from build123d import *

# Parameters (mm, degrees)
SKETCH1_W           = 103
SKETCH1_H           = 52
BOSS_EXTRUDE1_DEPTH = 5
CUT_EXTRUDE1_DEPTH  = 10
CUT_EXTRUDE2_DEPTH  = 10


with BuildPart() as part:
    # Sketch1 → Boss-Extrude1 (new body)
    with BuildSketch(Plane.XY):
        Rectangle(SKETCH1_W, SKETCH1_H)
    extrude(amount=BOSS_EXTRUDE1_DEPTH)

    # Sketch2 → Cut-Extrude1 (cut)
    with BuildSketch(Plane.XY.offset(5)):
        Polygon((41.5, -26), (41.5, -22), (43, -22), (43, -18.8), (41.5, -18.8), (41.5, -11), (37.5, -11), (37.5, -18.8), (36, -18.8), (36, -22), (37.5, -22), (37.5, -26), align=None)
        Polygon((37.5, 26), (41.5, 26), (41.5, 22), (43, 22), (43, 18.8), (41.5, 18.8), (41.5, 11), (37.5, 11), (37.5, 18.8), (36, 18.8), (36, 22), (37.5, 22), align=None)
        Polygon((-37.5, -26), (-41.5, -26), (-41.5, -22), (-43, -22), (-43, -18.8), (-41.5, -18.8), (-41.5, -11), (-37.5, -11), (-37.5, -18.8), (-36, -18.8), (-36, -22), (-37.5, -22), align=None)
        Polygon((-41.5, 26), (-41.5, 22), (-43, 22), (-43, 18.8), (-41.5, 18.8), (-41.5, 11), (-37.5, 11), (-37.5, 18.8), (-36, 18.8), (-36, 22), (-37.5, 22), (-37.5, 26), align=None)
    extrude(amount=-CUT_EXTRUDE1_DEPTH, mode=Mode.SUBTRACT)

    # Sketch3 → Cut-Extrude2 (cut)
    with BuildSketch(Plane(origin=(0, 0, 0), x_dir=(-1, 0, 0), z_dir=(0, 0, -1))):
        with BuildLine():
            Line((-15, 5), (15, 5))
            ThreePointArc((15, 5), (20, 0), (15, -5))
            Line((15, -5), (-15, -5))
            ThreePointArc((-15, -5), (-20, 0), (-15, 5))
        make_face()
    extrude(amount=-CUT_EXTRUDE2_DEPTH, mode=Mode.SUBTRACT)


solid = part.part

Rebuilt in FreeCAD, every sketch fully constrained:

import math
import FreeCAD as App
import Part
import Sketcher
from FreeCAD import Vector


def add_polygon(sketch, points):
    """Adds a closed chain of lines whose ends are joined by coincident constraints."""
    first, n = sketch.GeometryCount, len(points)
    for a, b in zip(points, points[1:] + points[:1]):
        sketch.addGeometry(Part.LineSegment(App.Vector(*a, 0), App.Vector(*b, 0)), False)
    for i in range(n):
        sketch.addConstraint(Sketcher.Constraint("Coincident", first + i, 2, first + (i + 1) % n, 1))

doc = App.newDocument("Part")
body = doc.addObject("PartDesign::Body", "Body")

sketch1 = doc.addObject("Sketcher::SketchObject", "Sketch")
body.addObject(sketch1)
sketch1.AttachmentSupport = (doc.XY_Plane, [""])
sketch1.MapMode = "FlatFace"
add_polygon(sketch1, [(-52, 26), (-52, -26), (52, -26), (52, 26)])
sketch1.addConstraint([
    Sketcher.Constraint("Vertical", 0),
    Sketcher.Constraint("Horizontal", 1),
    Sketcher.Constraint("Vertical", 2),
    Sketcher.Constraint("Horizontal", 3),
    Sketcher.Constraint("Symmetric", 0, 2, 2, 2, -1, 1),
    Sketcher.Constraint("DistanceX", 1, 1, 1, 2, 103.0),
    Sketcher.Constraint("DistanceY", 0, 2, 0, 1, 52.0),
])
pad1 = doc.addObject("PartDesign::Pad", "Pad")
body.addObject(pad1)
pad1.Profile = sketch1
pad1.Length = 5

sketch2 = doc.addObject("Sketcher::SketchObject", "Sketch001")
body.addObject(sketch2)
sketch2.AttachmentSupport = (doc.XY_Plane, [""])
sketch2.MapMode = "FlatFace"
sketch2.AttachmentOffset = App.Placement(Vector(0, 0, 5), App.Rotation())
add_polygon(sketch2, [(41.5, -26), (41.5, -22), (43, -22), (43, -18.8), (41.5, -18.8), (41.5, -11), (37.5, -11), (37.5, -18.8), (36, -18.8), (36, -22), (37.5, -22), (37.5, -26)])
add_polygon(sketch2, [(41.5, 26), (37.5, 26), (37.5, 22), (36, 22), (36, 18.8), (37.5, 18.8), (37.5, 11), (41.5, 11), (41.5, 18.8), (43, 18.8), (43, 22), (41.5, 22)])
add_polygon(sketch2, [(-41.5, -26), (-37.5, -26), (-37.5, -22), (-36, -22), (-36, -18.8), (-37.5, -18.8), (-37.5, -11), (-41.5, -11), (-41.5, -18.8), (-43, -18.8), (-43, -22), (-41.5, -22)])
add_polygon(sketch2, [(-41.5, 26), (-41.5, 22), (-43, 22), (-43, 18.8), (-41.5, 18.8), (-41.5, 11), (-37.5, 11), (-37.5, 18.8), (-36, 18.8), (-36, 22), (-37.5, 22), (-37.5, 26)])
sketch2.addConstraint([
    Sketcher.Constraint("Vertical", 0),
    Sketcher.Constraint("Horizontal", 1),
    Sketcher.Constraint("Vertical", 2),
    Sketcher.Constraint("Horizontal", 3),
    Sketcher.Constraint("Vertical", 4),
    Sketcher.Constraint("Horizontal", 5),
    Sketcher.Constraint("Vertical", 6),
    Sketcher.Constraint("Horizontal", 7),
    Sketcher.Constraint("Vertical", 8),
    Sketcher.Constraint("Horizontal", 9),
    Sketcher.Constraint("Vertical", 10),
    Sketcher.Constraint("Horizontal", 11),
    Sketcher.Constraint("Horizontal", 12),
    Sketcher.Constraint("Vertical", 13),
    Sketcher.Constraint("Horizontal", 14),
    Sketcher.Constraint("Vertical", 15),
    Sketcher.Constraint("Horizontal", 16),
    Sketcher.Constraint("Vertical", 17),
    Sketcher.Constraint("Horizontal", 18),
    Sketcher.Constraint("Vertical", 19),
    Sketcher.Constraint("Horizontal", 20),
    Sketcher.Constraint("Vertical", 21),
    Sketcher.Constraint("Horizontal", 22),
    Sketcher.Constraint("Vertical", 23),
    Sketcher.Constraint("Horizontal", 24),
    Sketcher.Constraint("Vertical", 25),
    Sketcher.Constraint("Horizontal", 26),
    Sketcher.Constraint("Vertical", 27),
    Sketcher.Constraint("Horizontal", 28),
    Sketcher.Constraint("Vertical", 29),
    Sketcher.Constraint("Horizontal", 30),
    Sketcher.Constraint("Vertical", 31),
    Sketcher.Constraint("Horizontal", 32),
    Sketcher.Constraint("Vertical", 33),
    Sketcher.Constraint("Horizontal", 34),
    Sketcher.Constraint("Vertical", 35),
    Sketcher.Constraint("Vertical", 36),
    Sketcher.Constraint("Horizontal", 37),
    Sketcher.Constraint("Vertical", 38),
    Sketcher.Constraint("Horizontal", 39),
    Sketcher.Constraint("Vertical", 40),
    Sketcher.Constraint("Horizontal", 41),
    Sketcher.Constraint("Vertical", 42),
    Sketcher.Constraint("Horizontal", 43),
    Sketcher.Constraint("Vertical", 44),
    Sketcher.Constraint("Horizontal", 45),
    Sketcher.Constraint("Vertical", 46),
    Sketcher.Constraint("Horizontal", 47),
    Sketcher.Constraint("Symmetric", 12, 2, 24, 2, -1, 1),
    Sketcher.Constraint("Symmetric", 14, 2, 26, 2, -1, 1),
    Sketcher.Constraint("Symmetric", 16, 2, 28, 2, -1, 1),
    Sketcher.Constraint("Symmetric", 18, 2, 30, 2, -1, 1),
    Sketcher.Constraint("Symmetric", 20, 2, 32, 2, -1, 1),
    Sketcher.Constraint("Symmetric", 22, 2, 34, 2, -1, 1),
    Sketcher.Constraint("Symmetric", 0, 2, 36, 2, -1, 1),
    Sketcher.Constraint("Symmetric", 2, 2, 38, 2, -1, 1),
    Sketcher.Constraint("Symmetric", 4, 2, 40, 2, -1, 1),
    Sketcher.Constraint("Symmetric", 6, 2, 42, 2, -1, 1),
    Sketcher.Constraint("Symmetric", 8, 2, 44, 2, -1, 1),
    Sketcher.Constraint("Symmetric", 10, 2, 46, 2, -1, 1),
    Sketcher.Constraint("Symmetric", 10, 2, 24, 2, -2),
    Sketcher.Constraint("Symmetric", 8, 2, 26, 2, -2),
    Sketcher.Constraint("Symmetric", 6, 2, 28, 2, -2),
    Sketcher.Constraint("Symmetric", 4, 2, 30, 2, -2),
    Sketcher.Constraint("Symmetric", 2, 2, 32, 2, -2),
    Sketcher.Constraint("Symmetric", 0, 2, 34, 2, -2),
    Sketcher.Constraint("Horizontal", 3, 2, 6, 2),
    Sketcher.Constraint("Horizontal", 1, 2, 8, 2),
    Sketcher.Constraint("Vertical", 0, 2, 3, 2),
    Sketcher.Constraint("Vertical", 6, 2, 9, 2),
    Sketcher.Constraint("Equal", 3, 7),
    Sketcher.Constraint("Equal", 47, 0),
    Sketcher.Constraint("DistanceX", 5, 2, 5, 1, 4.0),
    Sketcher.Constraint("DistanceX", 1, 1, 1, 2, 1.5),
    Sketcher.Constraint("DistanceY", 2, 1, 2, 2, 3.2),
    Sketcher.Constraint("DistanceY", 4, 1, 4, 2, 7.8),
    Sketcher.Constraint("DistanceY", 0, 2, -1, 1, 22.0),
    Sketcher.Constraint("DistanceX", -1, 1, 1, 2, 43.0),
])
pocket1 = doc.addObject("PartDesign::Pocket", "Pocket")
body.addObject(pocket1)
pocket1.Profile = sketch2
pocket1.Length = 10

sketch3 = doc.addObject("Sketcher::SketchObject", "Sketch002")
body.addObject(sketch3)
sketch3.AttachmentSupport = (doc.XY_Plane, [""])
sketch3.MapMode = "FlatFace"
sketch3.addGeometry([
    Part.LineSegment(Vector(-15, 5, 0), Vector(15, 5, 0)),
    Part.ArcOfCircle(Part.Circle(Vector(15, 0, 0), Vector(0, 0, 1), 5), math.radians(-90), math.radians(90)),
    Part.LineSegment(Vector(15, -5, 0), Vector(-15, -5, 0)),
    Part.ArcOfCircle(Part.Circle(Vector(-15, 0, 0), Vector(0, 0, 1), 5), math.radians(90), math.radians(270)),
], False)
sketch3.addConstraint([
    Sketcher.Constraint("Tangent", 0, 2, 1, 2),
    Sketcher.Constraint("Tangent", 1, 1, 2, 1),
    Sketcher.Constraint("Tangent", 2, 2, 3, 2),
    Sketcher.Constraint("Tangent", 3, 1, 0, 1),
    Sketcher.Constraint("Horizontal", 0),
    Sketcher.Constraint("Horizontal", 2),
    Sketcher.Constraint("Symmetric", 1, 3, 3, 3, -1, 1),
    Sketcher.Constraint("Radius", 1, 5.0),
    Sketcher.Constraint("DistanceX", 0, 1, 0, 2, 30.0),
])
pocket2 = doc.addObject("PartDesign::Pocket", "Pocket001")
body.addObject(pocket2)
pocket2.Profile = sketch3
pocket2.Length = 10
pocket2.Reversed = True

doc.recompute()
